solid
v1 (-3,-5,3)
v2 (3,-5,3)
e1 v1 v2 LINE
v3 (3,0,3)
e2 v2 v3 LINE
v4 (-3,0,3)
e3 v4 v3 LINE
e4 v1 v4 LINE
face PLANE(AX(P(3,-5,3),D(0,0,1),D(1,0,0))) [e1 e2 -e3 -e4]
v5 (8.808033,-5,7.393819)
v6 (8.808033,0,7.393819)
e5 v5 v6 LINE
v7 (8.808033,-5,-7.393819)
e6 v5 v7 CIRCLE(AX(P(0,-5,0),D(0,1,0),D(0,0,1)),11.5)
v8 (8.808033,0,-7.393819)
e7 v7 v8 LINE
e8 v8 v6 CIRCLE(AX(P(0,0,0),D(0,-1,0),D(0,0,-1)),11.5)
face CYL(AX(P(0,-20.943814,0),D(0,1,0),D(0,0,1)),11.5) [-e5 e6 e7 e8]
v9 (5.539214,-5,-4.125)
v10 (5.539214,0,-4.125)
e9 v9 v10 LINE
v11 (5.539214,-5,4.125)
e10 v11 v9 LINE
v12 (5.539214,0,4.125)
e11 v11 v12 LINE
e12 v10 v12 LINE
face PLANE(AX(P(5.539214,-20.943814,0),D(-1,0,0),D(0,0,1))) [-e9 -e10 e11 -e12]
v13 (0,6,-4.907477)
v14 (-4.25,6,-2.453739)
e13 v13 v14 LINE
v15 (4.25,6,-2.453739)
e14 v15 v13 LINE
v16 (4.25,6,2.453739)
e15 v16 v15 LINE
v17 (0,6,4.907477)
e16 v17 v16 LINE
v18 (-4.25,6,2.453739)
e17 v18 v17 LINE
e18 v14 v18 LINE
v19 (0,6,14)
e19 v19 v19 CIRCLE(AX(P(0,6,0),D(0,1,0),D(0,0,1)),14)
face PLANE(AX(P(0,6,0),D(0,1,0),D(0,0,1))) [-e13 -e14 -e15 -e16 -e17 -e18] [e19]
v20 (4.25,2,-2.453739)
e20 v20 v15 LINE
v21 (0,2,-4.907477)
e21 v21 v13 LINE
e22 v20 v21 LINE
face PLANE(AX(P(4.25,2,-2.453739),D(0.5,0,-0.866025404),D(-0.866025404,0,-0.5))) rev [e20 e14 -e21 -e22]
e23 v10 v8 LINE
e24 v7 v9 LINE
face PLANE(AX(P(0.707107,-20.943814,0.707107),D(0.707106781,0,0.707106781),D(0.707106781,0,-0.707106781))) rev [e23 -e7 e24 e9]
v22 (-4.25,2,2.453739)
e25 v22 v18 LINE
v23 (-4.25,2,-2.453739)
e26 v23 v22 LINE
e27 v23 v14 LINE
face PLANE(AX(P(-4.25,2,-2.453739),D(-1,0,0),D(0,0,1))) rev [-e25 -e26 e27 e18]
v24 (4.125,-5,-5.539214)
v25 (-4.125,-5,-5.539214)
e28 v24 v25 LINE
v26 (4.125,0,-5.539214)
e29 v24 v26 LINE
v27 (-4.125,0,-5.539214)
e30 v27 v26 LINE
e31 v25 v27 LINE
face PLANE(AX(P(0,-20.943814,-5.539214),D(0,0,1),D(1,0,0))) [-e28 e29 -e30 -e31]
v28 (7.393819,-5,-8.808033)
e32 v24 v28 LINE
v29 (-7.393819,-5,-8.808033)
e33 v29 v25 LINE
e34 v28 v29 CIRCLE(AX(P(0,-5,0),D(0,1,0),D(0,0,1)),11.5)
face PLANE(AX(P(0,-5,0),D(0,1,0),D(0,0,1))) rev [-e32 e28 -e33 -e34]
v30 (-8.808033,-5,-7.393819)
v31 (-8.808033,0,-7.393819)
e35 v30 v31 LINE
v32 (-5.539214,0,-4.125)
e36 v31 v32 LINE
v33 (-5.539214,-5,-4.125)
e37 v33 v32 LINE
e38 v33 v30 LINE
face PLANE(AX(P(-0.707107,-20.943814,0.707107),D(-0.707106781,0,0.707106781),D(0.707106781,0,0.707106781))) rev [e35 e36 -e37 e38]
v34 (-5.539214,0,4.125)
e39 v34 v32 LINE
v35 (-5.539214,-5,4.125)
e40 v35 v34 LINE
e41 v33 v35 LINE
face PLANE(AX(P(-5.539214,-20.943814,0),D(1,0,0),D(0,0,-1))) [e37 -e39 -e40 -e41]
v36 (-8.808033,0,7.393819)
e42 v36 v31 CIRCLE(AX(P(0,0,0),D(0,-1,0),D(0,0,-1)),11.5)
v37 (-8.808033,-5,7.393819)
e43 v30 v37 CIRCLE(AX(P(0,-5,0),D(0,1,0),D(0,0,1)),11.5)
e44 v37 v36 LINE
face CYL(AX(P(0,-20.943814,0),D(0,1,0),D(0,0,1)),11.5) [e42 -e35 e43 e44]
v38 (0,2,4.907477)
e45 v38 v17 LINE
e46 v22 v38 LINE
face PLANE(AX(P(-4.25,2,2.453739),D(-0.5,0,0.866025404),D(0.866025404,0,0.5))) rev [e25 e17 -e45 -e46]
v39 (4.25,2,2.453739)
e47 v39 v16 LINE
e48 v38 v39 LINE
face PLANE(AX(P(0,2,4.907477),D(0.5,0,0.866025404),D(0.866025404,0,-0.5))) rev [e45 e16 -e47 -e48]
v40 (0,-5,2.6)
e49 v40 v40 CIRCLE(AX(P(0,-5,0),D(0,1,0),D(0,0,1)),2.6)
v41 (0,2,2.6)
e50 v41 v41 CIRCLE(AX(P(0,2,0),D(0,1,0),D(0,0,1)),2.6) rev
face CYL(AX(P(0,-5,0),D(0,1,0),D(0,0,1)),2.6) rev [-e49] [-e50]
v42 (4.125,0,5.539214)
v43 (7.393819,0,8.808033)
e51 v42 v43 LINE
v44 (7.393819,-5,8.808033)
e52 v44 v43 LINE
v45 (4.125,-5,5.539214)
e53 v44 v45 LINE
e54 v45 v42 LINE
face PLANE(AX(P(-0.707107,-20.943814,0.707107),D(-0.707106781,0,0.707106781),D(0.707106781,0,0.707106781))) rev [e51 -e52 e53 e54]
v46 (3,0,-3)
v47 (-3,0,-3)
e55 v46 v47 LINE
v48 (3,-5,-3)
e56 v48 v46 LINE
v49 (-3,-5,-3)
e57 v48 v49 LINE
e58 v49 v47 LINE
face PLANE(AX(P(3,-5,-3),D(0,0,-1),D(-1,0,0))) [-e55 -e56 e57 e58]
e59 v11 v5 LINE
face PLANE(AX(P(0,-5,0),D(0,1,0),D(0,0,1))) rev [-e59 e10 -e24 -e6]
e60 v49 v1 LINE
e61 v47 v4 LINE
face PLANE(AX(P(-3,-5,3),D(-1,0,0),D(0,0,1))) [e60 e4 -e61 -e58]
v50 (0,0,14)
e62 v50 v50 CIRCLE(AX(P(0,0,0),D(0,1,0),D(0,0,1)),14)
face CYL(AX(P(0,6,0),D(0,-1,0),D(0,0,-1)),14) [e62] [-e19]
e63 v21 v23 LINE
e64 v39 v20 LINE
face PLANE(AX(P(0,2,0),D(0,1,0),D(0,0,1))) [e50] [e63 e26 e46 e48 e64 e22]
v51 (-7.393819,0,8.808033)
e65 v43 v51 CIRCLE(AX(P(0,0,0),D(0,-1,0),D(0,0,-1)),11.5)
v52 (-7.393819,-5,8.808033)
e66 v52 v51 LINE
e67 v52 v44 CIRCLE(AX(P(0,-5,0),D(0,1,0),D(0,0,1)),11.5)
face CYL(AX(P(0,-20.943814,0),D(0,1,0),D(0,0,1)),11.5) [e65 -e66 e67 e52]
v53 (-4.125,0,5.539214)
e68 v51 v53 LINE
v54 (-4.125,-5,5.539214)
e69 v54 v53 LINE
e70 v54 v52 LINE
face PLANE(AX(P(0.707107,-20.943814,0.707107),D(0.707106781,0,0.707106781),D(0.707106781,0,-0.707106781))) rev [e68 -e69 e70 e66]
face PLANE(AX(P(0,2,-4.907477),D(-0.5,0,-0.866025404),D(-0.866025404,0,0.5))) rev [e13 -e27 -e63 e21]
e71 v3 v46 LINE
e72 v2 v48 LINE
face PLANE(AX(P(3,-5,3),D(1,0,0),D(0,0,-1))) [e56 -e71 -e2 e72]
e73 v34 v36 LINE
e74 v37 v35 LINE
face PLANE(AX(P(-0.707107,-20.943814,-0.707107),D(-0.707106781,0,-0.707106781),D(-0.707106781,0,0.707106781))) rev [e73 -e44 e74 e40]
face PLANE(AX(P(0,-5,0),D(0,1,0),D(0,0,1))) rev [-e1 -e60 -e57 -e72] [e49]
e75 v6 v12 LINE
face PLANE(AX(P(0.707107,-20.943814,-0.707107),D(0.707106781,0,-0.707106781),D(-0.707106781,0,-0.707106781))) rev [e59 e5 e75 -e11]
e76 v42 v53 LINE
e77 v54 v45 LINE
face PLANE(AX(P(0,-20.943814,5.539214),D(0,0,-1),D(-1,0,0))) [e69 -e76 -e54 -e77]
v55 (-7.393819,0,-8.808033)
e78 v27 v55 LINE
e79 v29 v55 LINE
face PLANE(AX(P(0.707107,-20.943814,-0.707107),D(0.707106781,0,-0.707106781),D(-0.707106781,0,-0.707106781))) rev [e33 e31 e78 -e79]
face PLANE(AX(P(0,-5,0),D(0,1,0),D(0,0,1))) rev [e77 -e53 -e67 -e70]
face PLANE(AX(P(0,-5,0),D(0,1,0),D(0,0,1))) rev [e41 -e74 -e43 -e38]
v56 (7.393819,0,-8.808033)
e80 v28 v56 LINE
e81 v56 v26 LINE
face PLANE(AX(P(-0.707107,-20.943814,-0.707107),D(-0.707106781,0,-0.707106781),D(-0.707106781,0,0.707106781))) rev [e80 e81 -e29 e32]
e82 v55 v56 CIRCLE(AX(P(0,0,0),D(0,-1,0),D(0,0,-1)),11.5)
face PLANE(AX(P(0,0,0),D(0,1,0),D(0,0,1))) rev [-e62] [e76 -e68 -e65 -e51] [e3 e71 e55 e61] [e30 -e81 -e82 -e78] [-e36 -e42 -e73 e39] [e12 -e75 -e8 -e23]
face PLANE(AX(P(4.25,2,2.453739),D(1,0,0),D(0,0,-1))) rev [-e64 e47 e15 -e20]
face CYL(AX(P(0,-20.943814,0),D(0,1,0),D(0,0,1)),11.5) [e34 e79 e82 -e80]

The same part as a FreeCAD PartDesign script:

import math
import FreeCAD as App
import Part
import Sketcher

V = App.Vector
Q = App.Units.Quantity

doc = App.newDocument("Part")
body = doc.addObject("PartDesign::Body", "Body")

# Sketch on XZ plane
sketch1 = body.newObject("Sketcher::SketchObject", "Sketch")
sketch1.AttachmentSupport = (doc.getObject("XZ_Plane"), [""])
sketch1.MapMode = "FlatFace"
sketch1.addGeometry([
    Part.LineSegment(V(-3, -3, 0), V(-3, 3, 0)),  # 0
    Part.LineSegment(V(-3, 3, 0), V(3, 3, 0)),  # 1
    Part.LineSegment(V(3, 3, 0), V(3, -3, 0)),  # 2
    Part.LineSegment(V(3, -3, 0), V(-3, -3, 0)),  # 3
    Part.Circle(V(0, 0, 0), V(0, 0, 1), 2.6),  # 4
], False)
sketch1.addConstraint([
    Sketcher.Constraint("Coincident", 0, 2, 1, 1),
    Sketcher.Constraint("Coincident", 1, 2, 2, 1),
    Sketcher.Constraint("Coincident", 2, 2, 3, 1),
    Sketcher.Constraint("Coincident", 3, 2, 0, 1),
    Sketcher.Constraint("Vertical", 0),
    Sketcher.Constraint("Horizontal", 1),
    Sketcher.Constraint("Vertical", 2),
    Sketcher.Constraint("Horizontal", 3),
    Sketcher.Constraint("Coincident", 4, 3, -1, 1),
    Sketcher.Constraint("Symmetric", 0, 2, 2, 2, -1, 1),
    Sketcher.Constraint("Equal", 3, 0),
    Sketcher.Constraint("Diameter", 4, Q("5.2 mm")),
    Sketcher.Constraint("DistanceX", 1, 1, 1, 2, Q("6 mm")),
])
pad1 = body.newObject("PartDesign::Pad", "Pad")
pad1.Profile = sketch1
pad1.Length = 5

# Sketch on XZ plane
sketch2 = body.newObject("Sketcher::SketchObject", "Sketch001")
sketch2.AttachmentSupport = (doc.getObject("XZ_Plane"), [""])
sketch2.MapMode = "FlatFace"
sketch2.AttachmentOffset = App.Placement(V(0, 0, -6), App.Rotation())
sketch2.addGeometry([
    Part.Circle(V(0, 0, 0), V(0, 0, 1), 14),
    Part.Circle(V(0, 0, 0), V(0, 0, 1), 2.6),
], False)
sketch2.addConstraint([
    Sketcher.Constraint("Coincident", 0, 3, -1, 1),
    Sketcher.Constraint("Coincident", 1, 3, -1, 1),
    Sketcher.Constraint("Diameter", 0, Q("28 mm")),
    Sketcher.Constraint("Diameter", 1, Q("5.2 mm")),
])
pad2 = body.newObject("PartDesign::Pad", "Pad001")
pad2.Profile = sketch2
pad2.Length = 6

# Sketch on XZ plane
sketch3 = body.newObject("Sketcher::SketchObject", "Sketch002")
sketch3.AttachmentSupport = (doc.getObject("XZ_Plane"), [""])
sketch3.MapMode = "FlatFace"
sketch3.AttachmentOffset = App.Placement(V(0, 0, -6), App.Rotation())
sketch3.addGeometry([
    Part.LineSegment(V(0, -4.9, 0), V(-4.2, -2.5, 0)),  # 0
    Part.LineSegment(V(-4.2, -2.5, 0), V(-4.2, 2.5, 0)),  # 1
    Part.LineSegment(V(-4.2, 2.5, 0), V(0, 4.9, 0)),  # 2
    Part.LineSegment(V(0, 4.9, 0), V(4.2, 2.5, 0)),  # 3
    Part.LineSegment(V(4.2, 2.5, 0), V(4.2, -2.5, 0)),  # 4
    Part.LineSegment(V(4.2, -2.5, 0), V(0, -4.9, 0)),  # 5
], False)
sketch3.addConstraint([
    Sketcher.Constraint("Coincident", 0, 2, 1, 1),
    Sketcher.Constraint("Coincident", 1, 2, 2, 1),
    Sketcher.Constraint("Coincident", 2, 2, 3, 1),
    Sketcher.Constraint("Coincident", 3, 2, 4, 1),
    Sketcher.Constraint("Coincident", 4, 2, 5, 1),
    Sketcher.Constraint("Coincident", 5, 2, 0, 1),
    Sketcher.Constraint("Vertical", 1),
    Sketcher.Constraint("Vertical", 4),
    Sketcher.Constraint("Symmetric", 0, 2, 3, 2, -1, 1),
    Sketcher.Constraint("Symmetric", 2, 2, 5, 2, -1, 1),
    Sketcher.Constraint("PointOnObject", 2, 2, -2),
    Sketcher.Constraint("Parallel", 2, 5),
    Sketcher.Constraint("Horizontal", 1, 2, 3, 2),
    Sketcher.Constraint("Angle", 0, Q("150 deg")),
    Sketcher.Constraint("DistanceX", 1, 2, 3, 2, Q("8.5 mm")),
    Sketcher.Constraint("DistanceY", 1, 1, 1, 2, Q("4.907477 mm")),
])
pocket1 = body.newObject("PartDesign::Pocket", "Pocket")
pocket1.Profile = sketch3
pocket1.Length = 4
pocket1.Reversed = True

# Sketch on XZ plane
sketch4 = body.newObject("Sketcher::SketchObject", "Sketch003")
sketch4.AttachmentSupport = (doc.getObject("XZ_Plane"), [""])
sketch4.MapMode = "FlatFace"
sketch4.addGeometry([
    Part.ArcOfCircle(Part.Circle(V(0, 0, 0), V(0, 0, 1), 11.5), math.radians(0), math.radians(40)),  # 0
    Part.LineSegment(V(8.8, 7.4, 0), V(5.5, 4.1, 0)),  # 1
    Part.LineSegment(V(5.5, 4.1, 0), V(5.5, -4.1, 0)),  # 2
    Part.LineSegment(V(5.5, -4.1, 0), V(8.8, -7.4, 0)),  # 3
    Part.ArcOfCircle(Part.Circle(V(0, 0, 0), V(0, 0, 1), 11.5), math.radians(-40), math.radians(0)),  # 4
    Part.LineSegment(V(-4.1, -5.5, 0), V(-7.4, -8.8, 0)),  # 5
    Part.ArcOfCircle(Part.Circle(V(0, 0, 0), V(0, 0, 1), 11.5), math.radians(-130), math.radians(-50)),  # 6
    Part.LineSegment(V(7.4, -8.8, 0), V(4.1, -5.5, 0)),  # 7
    Part.LineSegment(V(4.1, -5.5, 0), V(-4.1, -5.5, 0)),  # 8
    Part.LineSegment(V(-5.5, -4.1, 0), V(-5.5, 4.1, 0)),  # 9
    Part.LineSegment(V(-5.5, 4.1, 0), V(-8.8, 7.4, 0)),  # 10
    Part.ArcOfCircle(Part.Circle(V(0, 0, 0), V(0, 0, 1), 11.5), math.radians(140), math.radians(220)),  # 11
    Part.LineSegment(V(-8.8, -7.4, 0), V(-5.5, -4.1, 0)),  # 12
    Part.ArcOfCircle(Part.Circle(V(0, 0, 0), V(0, 0, 1), 11.5), math.radians(50), math.radians(130)),  # 13
    Part.LineSegment(V(-7.4, 8.8, 0), V(-4.1, 5.5, 0)),  # 14
    Part.LineSegment(V(-4.1, 5.5, 0), V(4.1, 5.5, 0)),  # 15
    Part.LineSegment(V(4.1, 5.5, 0), V(7.4, 8.8, 0)),  # 16
], False)
sketch4.addConstraint([
    Sketcher.Constraint("Coincident", 0, 2, 1, 1),
    Sketcher.Constraint("Coincident", 1, 2, 2, 1),
    Sketcher.Constraint("Coincident", 2, 2, 3, 1),
    Sketcher.Constraint("Coincident", 3, 2, 4, 1),
    Sketcher.Constraint("Tangent", 4, 2, 0, 1),
    Sketcher.Constraint("Coincident", 5, 2, 6, 1),
    Sketcher.Constraint("Coincident", 6, 2, 7, 1),
    Sketcher.Constraint("Coincident", 7, 2, 8, 1),
    Sketcher.Constraint("Coincident", 8, 2, 5, 1),
    Sketcher.Constraint("Coincident", 9, 2, 10, 1),
    Sketcher.Constraint("Coincident", 10, 2, 11, 1),
    Sketcher.Constraint("Coincident", 11, 2, 12, 1),
    Sketcher.Constraint("Coincident", 12, 2, 9, 1),
    Sketcher.Constraint("Coincident", 13, 2, 14, 1),
    Sketcher.Constraint("Coincident", 14, 2, 15, 1),
    Sketcher.Constraint("Coincident", 15, 2, 16, 1),
    Sketcher.Constraint("Coincident", 16, 2, 13, 1),
    Sketcher.Constraint("Vertical", 2),
    Sketcher.Constraint("Horizontal", 8),
    Sketcher.Constraint("Vertical", 9),
    Sketcher.Constraint("Horizontal", 15),
    Sketcher.Constraint("Coincident", 0, 3, -1, 1),
    Sketcher.Constraint("Coincident", 6, 3, -1, 1),
    Sketcher.Constraint("Coincident", 11, 3, -1, 1),
    Sketcher.Constraint("Coincident", 13, 3, -1, 1),
    Sketcher.Constraint("Equal", 0, 4),
    Sketcher.Constraint("Equal", 4, 6),
    Sketcher.Constraint("Equal", 6, 11),
    Sketcher.Constraint("Equal", 11, 13),
    Sketcher.Constraint("Symmetric", 2, 2, 9, 2, -1, 1),
    Sketcher.Constraint("Symmetric", 7, 2, 14, 2, -1, 1),
    Sketcher.Constraint("PointOnObject", 4, 2, -1),
    Sketcher.Constraint("Perpendicular", 1, 3),
    Sketcher.Constraint("Perpendicular", 3, 5),
    Sketcher.Constraint("Perpendicular", 5, 7),
    Sketcher.Constraint("Parallel", 7, 10),
    Sketcher.Constraint("Perpendicular", 10, 12),
    Sketcher.Constraint("Perpendicular", 12, 14),
    Sketcher.Constraint("Perpendicular", 14, 16),
    Sketcher.Constraint("Horizontal", 5, 2, 6, 2),
    Sketcher.Constraint("Horizontal", 1, 2, 9, 2),
    Sketcher.Constraint("Horizontal", 0, 2, 10, 2),
    Sketcher.Constraint("Horizontal", 3, 2, 11, 2),
    Sketcher.Constraint("Horizontal", 13, 2, 16, 2),
    Sketcher.Constraint("Equal", 15, 2),
    Sketcher.Constraint("Equal", 3, 5),
    Sketcher.Constraint("Radius", 0, Q("11.5 mm")),
    Sketcher.Constraint("DistanceX", 8, 2, 8, 1, Q("8.25 mm")),
    Sketcher.Constraint("Distance", 1, Q("4.622808 mm")),
])
pad3 = body.newObject("PartDesign::Pad", "Pad002")
pad3.Profile = sketch4
pad3.Length = 5

doc.recompute()
